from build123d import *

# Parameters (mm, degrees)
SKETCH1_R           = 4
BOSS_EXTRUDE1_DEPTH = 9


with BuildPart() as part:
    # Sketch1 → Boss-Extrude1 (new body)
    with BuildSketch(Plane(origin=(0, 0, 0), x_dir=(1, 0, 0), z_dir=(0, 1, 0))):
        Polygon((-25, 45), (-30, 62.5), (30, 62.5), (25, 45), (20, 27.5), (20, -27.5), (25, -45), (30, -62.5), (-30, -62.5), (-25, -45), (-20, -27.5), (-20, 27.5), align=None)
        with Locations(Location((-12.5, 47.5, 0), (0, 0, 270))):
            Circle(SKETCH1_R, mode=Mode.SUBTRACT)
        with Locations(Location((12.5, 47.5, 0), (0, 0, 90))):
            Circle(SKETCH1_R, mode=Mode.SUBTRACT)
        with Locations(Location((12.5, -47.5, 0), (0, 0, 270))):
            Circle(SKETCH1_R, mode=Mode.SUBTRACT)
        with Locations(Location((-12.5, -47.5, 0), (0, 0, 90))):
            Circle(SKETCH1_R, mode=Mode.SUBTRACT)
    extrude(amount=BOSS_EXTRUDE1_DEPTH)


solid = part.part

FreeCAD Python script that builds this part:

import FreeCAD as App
import Part
import Sketcher


def add_polygon(sketch, points):
    """Adds a closed chain of lines whose ends are joined by coincident constraints."""
    first, n = sketch.GeometryCount, len(points)
    for a, b in zip(points, points[1:] + points[:1]):
        sketch.addGeometry(Part.LineSegment(App.Vector(*a, 0), App.Vector(*b, 0)), False)
    for i in range(n):
        sketch.addConstraint(Sketcher.Constraint("Coincident", first + i, 2, first + (i + 1) % n, 1))

doc = App.newDocument("Part")
params = doc.addObject("Spreadsheet::Sheet", "Params")
for row, (alias, value) in enumerate([
    ("sketch1_diameter", "8 mm"),
    ("sketch1_width", "60 mm"),
    ("sketch1_height", "55 mm"),
    ("pad1_length", "9 mm"),
], start=1):
    params.set(f"A{row}", alias)
    params.set(f"B{row}", "=" + value)
    params.setAlias(f"B{row}", alias)

body = doc.addObject("PartDesign::Body", "Body")

# Sketch on XZ plane
sketch1 = body.newObject("Sketcher::SketchObject", "Sketch")
sketch1.AttachmentSupport = (doc.getObject("XZ_Plane"), [""])
sketch1.MapMode = "FlatFace"
add_polygon(sketch1, [(-30, -62.5), (-20, -27.5), (-20, 27.5), (-30, 62.5), (30, 62.5), (20, 27.5), (20, -27.5), (30, -62.5)])  # lines 0-7
sketch1.addGeometry(Part.Circle(App.Vector(12.5, 47.5, 0), App.Vector(0, 0, 1), 4), False)  # 8
sketch1.addGeometry(Part.Circle(App.Vector(-12.5, 47.5, 0), App.Vector(0, 0, 1), 4), False)  # 9
sketch1.addGeometry(Part.Circle(App.Vector(12.5, -47.5, 0), App.Vector(0, 0, 1), 4), False)  # 10
sketch1.addGeometry(Part.Circle(App.Vector(-12.5, -47.5, 0), App.Vector(0, 0, 1), 4), False)  # 11
sketch1.addConstraint(Sketcher.Constraint("Vertical", 1))
sketch1.addConstraint(Sketcher.Constraint("Horizontal", 3))
sketch1.addConstraint(Sketcher.Constraint("Vertical", 5))
sketch1.addConstraint(Sketcher.Constraint("Horizontal", 7))
sketch1.addConstraint(Sketcher.Constraint("Equal", 8, 9))
sketch1.addConstraint(Sketcher.Constraint("Equal", 9, 10))
sketch1.addConstraint(Sketcher.Constraint("Equal", 10, 11))
sketch1.addConstraint(Sketcher.Constraint("Symmetric", 9, 3, 10, 3, -1, 1))
sketch1.addConstraint(Sketcher.Constraint("Symmetric", 8, 3, 11, 3, -1, 1))
sketch1.addConstraint(Sketcher.Constraint("Symmetric", 0, 2, 4, 2, -1, 1))
sketch1.addConstraint(Sketcher.Constraint("Symmetric", 2, 2, 6, 2, -1, 1))
sketch1.addConstraint(Sketcher.Constraint("Symmetric", 8, 3, 9, 3, -2))
sketch1.addConstraint(Sketcher.Constraint("Parallel", 0, 4))
sketch1.addConstraint(Sketcher.Constraint("Parallel", 2, 6))
sketch1.addConstraint(Sketcher.Constraint("Horizontal", 1, 2, 4, 2))
sketch1.addConstraint(Sketcher.Constraint("Vertical", 3, 2, 6, 2))
sketch1.addConstraint(Sketcher.Constraint("Diameter", 8, 8.0))
sketch1.addConstraint(Sketcher.Constraint("DistanceX", 3, 1, 3, 2, 60.0))
sketch1.addConstraint(Sketcher.Constraint("DistanceY", 1, 1, 1, 2, 55.0))
sketch1.addConstraint(Sketcher.Constraint("DistanceX", 0, 2, -1, 1, 20.0))
sketch1.addConstraint(Sketcher.Constraint("DistanceX", 9, 3, 8, 3, 25.0))
sketch1.addConstraint(Sketcher.Constraint("DistanceY", 10, 3, 8, 3, 95.0))
sketch1.addConstraint(Sketcher.Constraint("DistanceY", 9, 3, 2, 2, 15.0))
sketch1.setExpression("Constraints[24]", "Params.sketch1_diameter")
sketch1.setExpression("Constraints[25]", "Params.sketch1_width")
sketch1.setExpression("Constraints[26]", "Params.sketch1_height")
pad1 = body.newObject("PartDesign::Pad", "Pad")
pad1.Profile = sketch1
pad1.setExpression("Length", "Params.pad1_length")
pad1.Reversed = True

doc.recompute()
